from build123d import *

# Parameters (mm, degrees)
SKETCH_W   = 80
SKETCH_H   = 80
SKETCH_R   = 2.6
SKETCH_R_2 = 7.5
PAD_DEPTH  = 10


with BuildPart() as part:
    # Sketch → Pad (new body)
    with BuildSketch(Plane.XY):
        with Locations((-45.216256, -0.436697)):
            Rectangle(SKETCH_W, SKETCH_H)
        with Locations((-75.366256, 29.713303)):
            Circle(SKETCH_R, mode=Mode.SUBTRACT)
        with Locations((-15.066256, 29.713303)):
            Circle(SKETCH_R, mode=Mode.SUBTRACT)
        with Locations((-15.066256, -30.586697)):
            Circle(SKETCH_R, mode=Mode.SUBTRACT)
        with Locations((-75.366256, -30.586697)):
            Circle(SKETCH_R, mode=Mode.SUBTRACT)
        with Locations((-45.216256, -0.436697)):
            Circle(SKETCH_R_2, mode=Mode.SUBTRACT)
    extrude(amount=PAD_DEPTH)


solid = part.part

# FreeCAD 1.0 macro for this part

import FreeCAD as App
import Part
import Sketcher

doc = App.newDocument("Part")
params = doc.addObject("Spreadsheet::Sheet", "Params")
for row, (alias, value) in enumerate([
    ("sketch1_diameter", "15 mm"),
    ("sketch1_diameter2", "5.2 mm"),
    ("sketch1_width", "80 mm"),
    ("pad1_length", "10 mm"),
], start=1):
    params.set(f"A{row}", alias)
    params.set(f"B{row}", "=" + value)
    params.setAlias(f"B{row}", alias)

body = doc.addObject("PartDesign::Body", "Body")

sketch1 = body.newObject("Sketcher::SketchObject", "Sketch")
sketch1.AttachmentSupport = (doc.getObject("XY_Plane"), [""])
sketch1.MapMode = "FlatFace"
sketch1.addGeometry([
    Part.LineSegment(App.Vector(-85.2, 39.6, 0), App.Vector(-85.2, -40.4, 0)),
    Part.LineSegment(App.Vector(-85.2, -40.4, 0), App.Vector(-5.2, -40.4, 0)),
    Part.LineSegment(App.Vector(-5.2, -40.4, 0), App.Vector(-5.2, 39.6, 0)),
    Part.LineSegment(App.Vector(-5.2, 39.6, 0), App.Vector(-85.2, 39.6, 0)),
    Part.Circle(App.Vector(-75.4, -30.6, 0), App.Vector(0, 0, 1), 2.6),
    Part.Circle(App.Vector(-15.1, -30.6, 0), App.Vector(0, 0, 1), 2.6),
    Part.Circle(App.Vector(-75.4, 29.7, 0), App.Vector(0, 0, 1), 2.6),
    Part.Circle(App.Vector(-45.2, -0.4, 0), App.Vector(0, 0, 1), 7.5),
    Part.Circle(App.Vector(-15.1, 29.7, 0), App.Vector(0, 0, 1), 2.6),
], False)
sketch1.addConstraint([
    Sketcher.Constraint("Coincident", 0, 2, 1, 1),
    Sketcher.Constraint("Coincident", 1, 2, 2, 1),
    Sketcher.Constraint("Coincident", 2, 2, 3, 1),
    Sketcher.Constraint("Coincident", 3, 2, 0, 1),
    Sketcher.Constraint("Vertical", 0),
    Sketcher.Constraint("Horizontal", 1),
    Sketcher.Constraint("Vertical", 2),
    Sketcher.Constraint("Horizontal", 3),
    Sketcher.Constraint("Equal", 4, 5),
    Sketcher.Constraint("Equal", 5, 6),
    Sketcher.Constraint("Equal", 6, 8),
    Sketcher.Constraint("Horizontal", 4, 3, 5, 3),
    Sketcher.Constraint("Horizontal", 6, 3, 8, 3),
    Sketcher.Constraint("Vertical", 4, 3, 6, 3),
    Sketcher.Constraint("Vertical", 5, 3, 8, 3),
    Sketcher.Constraint("Equal", 3, 0),
    Sketcher.Constraint("Diameter", 7, 15.0),
    Sketcher.Constraint("Diameter", 4, 5.2),
    Sketcher.Constraint("DistanceX", 1, 1, 1, 2, 80.0),
    Sketcher.Constraint("DistanceX", 0, 2, 7, 3, 40.0),
    Sketcher.Constraint("DistanceY", 0, 2, 7, 3, 40.0),
    Sketcher.Constraint("DistanceX", 4, 3, 5, 3, 60.3),
    Sketcher.Constraint("DistanceY", 4, 3, 6, 3, 60.3),
    Sketcher.Constraint("DistanceX", 4, 3, 7, 3, 30.15),
    Sketcher.Constraint("DistanceY", 4, 3, 7, 3, 30.15),
    Sketcher.Constraint("DistanceX", 4, 3, -1, 1, 75.366256),
    Sketcher.Constraint("DistanceY", 4, 3, -1, 1, 30.586697),
])
sketch1.setExpression("Constraints[16]", "Params.sketch1_diameter")
sketch1.setExpression("Constraints[17]", "Params.sketch1_diameter2")
sketch1.setExpression("Constraints[18]", "Params.sketch1_width")
pad1 = body.newObject("PartDesign::Pad", "Pad")
pad1.Profile = sketch1
pad1.setExpression("Length", "Params.pad1_length")

doc.recompute()
